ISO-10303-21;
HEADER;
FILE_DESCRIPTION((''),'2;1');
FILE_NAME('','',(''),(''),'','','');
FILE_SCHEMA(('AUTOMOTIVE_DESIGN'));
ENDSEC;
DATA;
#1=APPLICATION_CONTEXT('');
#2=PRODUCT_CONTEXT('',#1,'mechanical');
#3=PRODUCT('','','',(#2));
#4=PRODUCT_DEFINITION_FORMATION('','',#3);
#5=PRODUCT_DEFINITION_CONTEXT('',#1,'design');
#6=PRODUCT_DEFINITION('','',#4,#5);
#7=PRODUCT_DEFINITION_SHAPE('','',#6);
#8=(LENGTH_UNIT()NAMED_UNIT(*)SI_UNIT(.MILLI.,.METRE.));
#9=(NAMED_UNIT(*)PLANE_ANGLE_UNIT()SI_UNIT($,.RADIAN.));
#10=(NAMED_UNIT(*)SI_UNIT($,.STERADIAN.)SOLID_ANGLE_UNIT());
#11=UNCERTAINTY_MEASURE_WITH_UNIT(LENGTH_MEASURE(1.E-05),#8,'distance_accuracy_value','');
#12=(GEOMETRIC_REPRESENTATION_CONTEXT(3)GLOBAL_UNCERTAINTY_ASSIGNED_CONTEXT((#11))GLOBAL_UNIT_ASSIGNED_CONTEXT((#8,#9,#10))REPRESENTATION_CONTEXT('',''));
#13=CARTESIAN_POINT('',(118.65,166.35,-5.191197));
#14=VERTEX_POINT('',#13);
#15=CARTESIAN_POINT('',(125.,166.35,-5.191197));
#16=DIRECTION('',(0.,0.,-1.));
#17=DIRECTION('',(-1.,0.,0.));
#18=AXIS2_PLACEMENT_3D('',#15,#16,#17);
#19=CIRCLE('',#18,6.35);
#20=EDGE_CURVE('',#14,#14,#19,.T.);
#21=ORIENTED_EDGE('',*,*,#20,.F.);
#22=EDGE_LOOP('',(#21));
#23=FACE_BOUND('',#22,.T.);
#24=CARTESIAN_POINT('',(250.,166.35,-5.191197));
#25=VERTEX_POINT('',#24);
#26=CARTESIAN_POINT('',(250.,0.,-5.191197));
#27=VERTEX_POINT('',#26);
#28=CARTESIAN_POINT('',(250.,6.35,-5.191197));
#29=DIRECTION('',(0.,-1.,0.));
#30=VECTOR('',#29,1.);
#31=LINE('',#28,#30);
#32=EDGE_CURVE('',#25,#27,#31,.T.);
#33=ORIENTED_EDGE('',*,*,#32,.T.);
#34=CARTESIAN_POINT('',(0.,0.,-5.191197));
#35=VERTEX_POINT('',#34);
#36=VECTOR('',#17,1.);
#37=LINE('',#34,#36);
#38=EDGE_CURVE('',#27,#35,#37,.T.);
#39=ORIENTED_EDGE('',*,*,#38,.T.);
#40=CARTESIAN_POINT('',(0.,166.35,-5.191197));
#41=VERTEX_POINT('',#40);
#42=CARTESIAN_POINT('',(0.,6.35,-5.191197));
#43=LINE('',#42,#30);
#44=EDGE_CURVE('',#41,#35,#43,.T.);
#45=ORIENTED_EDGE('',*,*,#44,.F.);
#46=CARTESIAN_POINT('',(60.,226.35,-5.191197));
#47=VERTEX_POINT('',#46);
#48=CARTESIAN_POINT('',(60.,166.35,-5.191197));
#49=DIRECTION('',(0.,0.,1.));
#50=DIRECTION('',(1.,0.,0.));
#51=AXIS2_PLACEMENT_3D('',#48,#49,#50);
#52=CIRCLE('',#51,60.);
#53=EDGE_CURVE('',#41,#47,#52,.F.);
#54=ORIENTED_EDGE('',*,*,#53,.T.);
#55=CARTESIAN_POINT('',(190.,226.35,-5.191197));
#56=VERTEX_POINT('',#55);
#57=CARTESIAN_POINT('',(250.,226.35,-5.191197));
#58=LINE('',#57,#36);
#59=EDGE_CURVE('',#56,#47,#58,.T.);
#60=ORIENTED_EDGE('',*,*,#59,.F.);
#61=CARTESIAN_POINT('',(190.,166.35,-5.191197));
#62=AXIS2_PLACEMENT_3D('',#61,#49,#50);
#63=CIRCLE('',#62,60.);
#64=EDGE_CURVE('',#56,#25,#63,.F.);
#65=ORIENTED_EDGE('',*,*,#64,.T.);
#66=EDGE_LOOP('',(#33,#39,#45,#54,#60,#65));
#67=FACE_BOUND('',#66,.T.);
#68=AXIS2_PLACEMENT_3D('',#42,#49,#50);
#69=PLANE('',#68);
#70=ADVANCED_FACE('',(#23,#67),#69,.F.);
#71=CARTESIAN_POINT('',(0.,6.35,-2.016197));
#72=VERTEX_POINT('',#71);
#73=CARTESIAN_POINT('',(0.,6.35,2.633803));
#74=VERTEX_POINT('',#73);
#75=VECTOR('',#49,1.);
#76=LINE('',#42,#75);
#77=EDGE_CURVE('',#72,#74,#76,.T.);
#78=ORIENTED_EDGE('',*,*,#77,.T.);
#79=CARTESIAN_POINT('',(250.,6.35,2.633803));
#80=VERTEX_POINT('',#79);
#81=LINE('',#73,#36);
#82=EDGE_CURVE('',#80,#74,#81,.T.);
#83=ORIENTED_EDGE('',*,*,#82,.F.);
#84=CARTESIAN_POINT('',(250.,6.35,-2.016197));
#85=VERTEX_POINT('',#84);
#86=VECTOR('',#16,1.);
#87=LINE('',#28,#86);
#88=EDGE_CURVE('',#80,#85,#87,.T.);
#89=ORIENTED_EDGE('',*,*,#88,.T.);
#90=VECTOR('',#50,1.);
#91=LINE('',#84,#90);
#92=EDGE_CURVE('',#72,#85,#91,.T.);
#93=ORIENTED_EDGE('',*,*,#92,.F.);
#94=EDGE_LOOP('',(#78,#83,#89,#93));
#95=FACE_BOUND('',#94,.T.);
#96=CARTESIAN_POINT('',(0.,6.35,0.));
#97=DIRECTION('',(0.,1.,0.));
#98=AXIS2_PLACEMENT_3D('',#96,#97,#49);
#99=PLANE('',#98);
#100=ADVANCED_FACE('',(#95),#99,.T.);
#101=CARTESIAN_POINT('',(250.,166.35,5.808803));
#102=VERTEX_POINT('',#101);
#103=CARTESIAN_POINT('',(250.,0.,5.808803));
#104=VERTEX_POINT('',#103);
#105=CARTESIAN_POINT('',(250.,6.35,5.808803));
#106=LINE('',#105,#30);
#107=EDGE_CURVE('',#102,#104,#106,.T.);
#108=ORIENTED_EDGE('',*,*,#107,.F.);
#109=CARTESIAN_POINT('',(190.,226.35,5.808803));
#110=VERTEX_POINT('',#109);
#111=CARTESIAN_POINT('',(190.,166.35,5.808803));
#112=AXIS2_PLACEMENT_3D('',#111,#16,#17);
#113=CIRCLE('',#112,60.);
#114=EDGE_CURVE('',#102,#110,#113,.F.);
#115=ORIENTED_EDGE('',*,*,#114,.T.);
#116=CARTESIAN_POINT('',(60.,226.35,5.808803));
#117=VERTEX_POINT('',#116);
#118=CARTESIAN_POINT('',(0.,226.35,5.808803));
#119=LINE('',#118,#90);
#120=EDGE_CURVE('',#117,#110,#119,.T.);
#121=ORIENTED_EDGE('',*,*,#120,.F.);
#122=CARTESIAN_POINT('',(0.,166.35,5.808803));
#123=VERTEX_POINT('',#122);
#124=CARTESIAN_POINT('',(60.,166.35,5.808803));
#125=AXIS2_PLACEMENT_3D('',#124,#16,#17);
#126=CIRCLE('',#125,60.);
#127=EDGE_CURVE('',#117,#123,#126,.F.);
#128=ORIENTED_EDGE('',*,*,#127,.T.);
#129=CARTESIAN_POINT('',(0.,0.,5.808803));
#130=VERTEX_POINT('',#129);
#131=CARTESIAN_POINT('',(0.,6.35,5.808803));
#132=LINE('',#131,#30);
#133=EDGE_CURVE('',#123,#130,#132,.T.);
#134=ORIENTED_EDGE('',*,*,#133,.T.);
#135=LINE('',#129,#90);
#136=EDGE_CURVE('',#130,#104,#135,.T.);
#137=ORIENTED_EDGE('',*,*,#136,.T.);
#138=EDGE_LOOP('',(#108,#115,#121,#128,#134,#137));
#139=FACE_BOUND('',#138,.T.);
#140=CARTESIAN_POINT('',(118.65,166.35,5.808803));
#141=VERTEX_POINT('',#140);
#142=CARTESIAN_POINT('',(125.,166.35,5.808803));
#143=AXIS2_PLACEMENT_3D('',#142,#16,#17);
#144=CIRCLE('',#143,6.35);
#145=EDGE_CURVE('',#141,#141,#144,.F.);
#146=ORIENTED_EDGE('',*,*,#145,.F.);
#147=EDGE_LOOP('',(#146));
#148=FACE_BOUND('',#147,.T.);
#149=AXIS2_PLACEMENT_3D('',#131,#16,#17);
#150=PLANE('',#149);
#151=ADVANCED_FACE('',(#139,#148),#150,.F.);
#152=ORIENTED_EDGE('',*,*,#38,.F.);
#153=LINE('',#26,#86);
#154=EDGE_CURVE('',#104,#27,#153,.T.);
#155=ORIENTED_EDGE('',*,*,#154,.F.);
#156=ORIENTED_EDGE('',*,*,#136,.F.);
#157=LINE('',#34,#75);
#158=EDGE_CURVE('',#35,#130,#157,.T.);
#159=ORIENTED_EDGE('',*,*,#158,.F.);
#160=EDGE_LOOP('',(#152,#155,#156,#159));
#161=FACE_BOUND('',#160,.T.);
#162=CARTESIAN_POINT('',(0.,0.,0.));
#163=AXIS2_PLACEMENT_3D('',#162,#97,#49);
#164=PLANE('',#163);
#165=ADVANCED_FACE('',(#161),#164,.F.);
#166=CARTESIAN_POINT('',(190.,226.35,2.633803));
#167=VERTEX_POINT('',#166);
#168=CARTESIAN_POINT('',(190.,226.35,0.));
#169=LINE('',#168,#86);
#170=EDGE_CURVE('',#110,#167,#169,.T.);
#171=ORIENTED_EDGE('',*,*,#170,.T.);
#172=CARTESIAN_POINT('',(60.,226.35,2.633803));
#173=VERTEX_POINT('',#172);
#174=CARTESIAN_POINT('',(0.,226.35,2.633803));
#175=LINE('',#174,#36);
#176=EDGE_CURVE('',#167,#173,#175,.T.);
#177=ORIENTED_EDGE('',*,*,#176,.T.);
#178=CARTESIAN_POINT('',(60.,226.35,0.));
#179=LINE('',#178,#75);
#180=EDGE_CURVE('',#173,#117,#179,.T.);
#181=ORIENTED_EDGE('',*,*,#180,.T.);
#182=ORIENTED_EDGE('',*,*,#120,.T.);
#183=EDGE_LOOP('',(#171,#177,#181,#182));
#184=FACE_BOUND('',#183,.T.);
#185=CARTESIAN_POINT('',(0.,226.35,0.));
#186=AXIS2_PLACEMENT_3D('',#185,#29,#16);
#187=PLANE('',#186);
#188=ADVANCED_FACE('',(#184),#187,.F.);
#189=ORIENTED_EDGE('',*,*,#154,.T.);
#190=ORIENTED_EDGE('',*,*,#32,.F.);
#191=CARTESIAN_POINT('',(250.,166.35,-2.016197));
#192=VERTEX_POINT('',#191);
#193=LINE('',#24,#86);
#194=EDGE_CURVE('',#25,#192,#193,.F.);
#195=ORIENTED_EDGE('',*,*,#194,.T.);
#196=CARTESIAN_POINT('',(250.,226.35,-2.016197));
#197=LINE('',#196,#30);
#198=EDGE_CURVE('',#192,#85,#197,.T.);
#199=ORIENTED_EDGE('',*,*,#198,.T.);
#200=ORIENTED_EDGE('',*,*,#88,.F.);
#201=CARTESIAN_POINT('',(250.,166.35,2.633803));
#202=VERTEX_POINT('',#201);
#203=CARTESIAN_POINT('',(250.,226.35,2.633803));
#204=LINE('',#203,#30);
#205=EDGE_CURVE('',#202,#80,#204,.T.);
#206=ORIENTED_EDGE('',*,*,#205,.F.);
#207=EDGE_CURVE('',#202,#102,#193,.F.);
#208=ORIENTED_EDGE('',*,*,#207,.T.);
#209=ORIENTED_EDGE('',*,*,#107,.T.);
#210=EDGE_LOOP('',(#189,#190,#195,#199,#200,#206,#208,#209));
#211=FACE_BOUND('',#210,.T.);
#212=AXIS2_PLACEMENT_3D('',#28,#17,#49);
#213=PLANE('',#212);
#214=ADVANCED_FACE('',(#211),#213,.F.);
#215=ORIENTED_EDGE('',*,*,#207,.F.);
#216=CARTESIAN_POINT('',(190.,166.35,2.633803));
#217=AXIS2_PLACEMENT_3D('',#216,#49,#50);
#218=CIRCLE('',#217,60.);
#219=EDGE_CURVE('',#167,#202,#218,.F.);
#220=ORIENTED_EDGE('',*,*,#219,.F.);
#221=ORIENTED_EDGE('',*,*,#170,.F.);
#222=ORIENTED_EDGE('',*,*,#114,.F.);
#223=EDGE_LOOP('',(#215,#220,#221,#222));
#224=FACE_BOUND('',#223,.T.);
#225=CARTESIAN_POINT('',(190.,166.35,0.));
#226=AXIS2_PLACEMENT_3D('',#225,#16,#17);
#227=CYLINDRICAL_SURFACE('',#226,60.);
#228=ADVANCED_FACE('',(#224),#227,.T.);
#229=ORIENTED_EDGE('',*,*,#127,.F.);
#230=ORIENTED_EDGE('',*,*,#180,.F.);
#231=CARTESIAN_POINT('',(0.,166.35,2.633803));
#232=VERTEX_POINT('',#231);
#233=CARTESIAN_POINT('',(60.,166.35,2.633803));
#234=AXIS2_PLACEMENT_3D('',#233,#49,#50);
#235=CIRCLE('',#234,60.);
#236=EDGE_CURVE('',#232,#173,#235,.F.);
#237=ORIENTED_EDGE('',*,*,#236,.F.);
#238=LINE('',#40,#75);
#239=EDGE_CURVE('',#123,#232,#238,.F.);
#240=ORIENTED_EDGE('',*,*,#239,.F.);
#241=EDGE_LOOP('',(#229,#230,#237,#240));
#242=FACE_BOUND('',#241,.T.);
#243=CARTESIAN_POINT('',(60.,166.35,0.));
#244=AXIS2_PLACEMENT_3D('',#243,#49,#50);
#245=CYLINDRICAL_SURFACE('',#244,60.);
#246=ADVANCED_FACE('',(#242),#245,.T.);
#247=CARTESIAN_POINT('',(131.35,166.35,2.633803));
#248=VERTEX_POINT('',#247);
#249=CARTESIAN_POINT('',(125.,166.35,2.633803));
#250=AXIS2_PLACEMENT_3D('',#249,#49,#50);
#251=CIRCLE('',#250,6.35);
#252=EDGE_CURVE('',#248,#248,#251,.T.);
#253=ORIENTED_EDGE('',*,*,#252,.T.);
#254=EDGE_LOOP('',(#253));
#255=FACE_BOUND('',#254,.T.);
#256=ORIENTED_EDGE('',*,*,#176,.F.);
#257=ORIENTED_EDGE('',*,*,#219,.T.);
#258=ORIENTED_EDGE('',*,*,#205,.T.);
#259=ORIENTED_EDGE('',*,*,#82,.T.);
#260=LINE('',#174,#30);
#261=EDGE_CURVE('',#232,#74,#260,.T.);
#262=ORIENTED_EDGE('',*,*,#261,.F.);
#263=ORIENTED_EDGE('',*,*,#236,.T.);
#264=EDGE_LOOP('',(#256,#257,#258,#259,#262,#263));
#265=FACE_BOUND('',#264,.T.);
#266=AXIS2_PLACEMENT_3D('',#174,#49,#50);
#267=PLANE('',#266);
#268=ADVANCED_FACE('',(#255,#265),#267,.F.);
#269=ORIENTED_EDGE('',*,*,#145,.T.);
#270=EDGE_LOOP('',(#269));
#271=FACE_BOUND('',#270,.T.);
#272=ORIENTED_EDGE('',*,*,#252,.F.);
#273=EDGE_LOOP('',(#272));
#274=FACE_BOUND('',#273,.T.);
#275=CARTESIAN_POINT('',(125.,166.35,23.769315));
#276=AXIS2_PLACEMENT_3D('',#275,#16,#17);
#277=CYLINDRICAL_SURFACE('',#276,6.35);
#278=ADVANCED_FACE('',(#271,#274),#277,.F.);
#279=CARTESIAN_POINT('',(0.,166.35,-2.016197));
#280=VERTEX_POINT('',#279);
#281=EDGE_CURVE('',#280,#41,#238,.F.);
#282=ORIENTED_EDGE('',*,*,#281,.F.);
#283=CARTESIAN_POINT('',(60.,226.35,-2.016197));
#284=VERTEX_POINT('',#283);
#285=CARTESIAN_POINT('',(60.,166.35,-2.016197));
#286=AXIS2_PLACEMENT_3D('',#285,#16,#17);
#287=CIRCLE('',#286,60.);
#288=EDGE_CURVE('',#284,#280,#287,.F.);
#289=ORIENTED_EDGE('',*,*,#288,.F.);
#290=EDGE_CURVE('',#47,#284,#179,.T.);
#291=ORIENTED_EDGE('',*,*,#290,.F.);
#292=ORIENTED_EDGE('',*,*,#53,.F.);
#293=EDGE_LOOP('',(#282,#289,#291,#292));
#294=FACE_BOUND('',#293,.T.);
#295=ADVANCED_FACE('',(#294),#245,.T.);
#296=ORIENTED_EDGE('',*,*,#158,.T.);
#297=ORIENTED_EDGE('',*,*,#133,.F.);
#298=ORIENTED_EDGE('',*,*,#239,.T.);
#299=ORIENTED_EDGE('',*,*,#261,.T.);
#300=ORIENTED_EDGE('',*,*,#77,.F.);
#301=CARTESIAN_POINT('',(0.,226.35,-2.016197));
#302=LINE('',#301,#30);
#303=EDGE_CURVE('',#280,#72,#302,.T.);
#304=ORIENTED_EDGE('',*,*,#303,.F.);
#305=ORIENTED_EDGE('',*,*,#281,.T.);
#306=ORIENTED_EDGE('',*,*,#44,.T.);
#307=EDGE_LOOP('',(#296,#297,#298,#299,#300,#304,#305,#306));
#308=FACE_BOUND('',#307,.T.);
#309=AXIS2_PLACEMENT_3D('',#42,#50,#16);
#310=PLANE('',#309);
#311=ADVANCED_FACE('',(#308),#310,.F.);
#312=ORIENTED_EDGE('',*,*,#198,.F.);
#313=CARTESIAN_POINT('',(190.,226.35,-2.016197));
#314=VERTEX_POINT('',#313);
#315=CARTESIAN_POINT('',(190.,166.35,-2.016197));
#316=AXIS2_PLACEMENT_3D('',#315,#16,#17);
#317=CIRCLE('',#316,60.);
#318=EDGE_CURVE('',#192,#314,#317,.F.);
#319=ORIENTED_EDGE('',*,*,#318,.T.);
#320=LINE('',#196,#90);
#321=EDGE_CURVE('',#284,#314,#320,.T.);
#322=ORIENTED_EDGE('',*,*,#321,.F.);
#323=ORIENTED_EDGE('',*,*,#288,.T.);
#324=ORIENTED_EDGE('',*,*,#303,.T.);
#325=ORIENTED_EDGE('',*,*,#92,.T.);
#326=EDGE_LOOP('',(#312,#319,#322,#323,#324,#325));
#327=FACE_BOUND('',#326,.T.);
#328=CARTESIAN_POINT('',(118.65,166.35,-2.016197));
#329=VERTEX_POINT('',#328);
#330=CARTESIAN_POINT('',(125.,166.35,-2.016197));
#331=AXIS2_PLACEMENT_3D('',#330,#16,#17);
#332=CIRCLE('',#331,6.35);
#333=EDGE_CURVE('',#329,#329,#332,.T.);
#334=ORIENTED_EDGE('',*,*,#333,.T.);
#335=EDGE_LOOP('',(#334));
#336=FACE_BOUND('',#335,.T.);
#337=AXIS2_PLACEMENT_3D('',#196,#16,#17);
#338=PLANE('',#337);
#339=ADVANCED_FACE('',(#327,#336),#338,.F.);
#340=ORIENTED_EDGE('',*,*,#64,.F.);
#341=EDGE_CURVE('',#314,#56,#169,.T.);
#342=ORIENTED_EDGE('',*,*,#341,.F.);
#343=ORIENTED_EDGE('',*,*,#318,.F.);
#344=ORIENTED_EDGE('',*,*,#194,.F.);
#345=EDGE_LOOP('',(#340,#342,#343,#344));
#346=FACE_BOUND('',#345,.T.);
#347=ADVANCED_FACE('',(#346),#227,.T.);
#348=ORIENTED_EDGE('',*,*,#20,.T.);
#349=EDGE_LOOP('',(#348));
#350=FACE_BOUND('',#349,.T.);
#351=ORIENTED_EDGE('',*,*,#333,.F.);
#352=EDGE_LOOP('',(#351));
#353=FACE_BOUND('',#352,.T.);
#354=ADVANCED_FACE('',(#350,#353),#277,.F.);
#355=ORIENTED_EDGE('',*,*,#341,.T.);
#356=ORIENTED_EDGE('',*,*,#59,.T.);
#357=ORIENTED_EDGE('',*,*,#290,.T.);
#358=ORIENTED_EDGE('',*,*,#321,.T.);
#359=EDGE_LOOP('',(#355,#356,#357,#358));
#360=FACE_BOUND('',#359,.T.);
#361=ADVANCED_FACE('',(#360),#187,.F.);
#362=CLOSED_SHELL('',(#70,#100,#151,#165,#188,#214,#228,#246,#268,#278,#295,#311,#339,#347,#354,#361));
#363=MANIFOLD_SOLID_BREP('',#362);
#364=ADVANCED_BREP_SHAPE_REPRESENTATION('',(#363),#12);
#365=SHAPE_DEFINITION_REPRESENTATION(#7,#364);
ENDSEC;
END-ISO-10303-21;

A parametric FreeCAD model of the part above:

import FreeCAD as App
import Part
import Sketcher
from FreeCAD import Vector
Q = App.Units.Quantity


def edges_at(feature, points):
    """Names of the edges that pass closest to the given points."""
    edges = feature.Shape.Edges
    near = lambda p: min(range(len(edges)), key=lambda i: edges[i].distToShape(Part.Vertex(*p))[0])
    return sorted({f"Edge{near(p) + 1}" for p in points})


def add_polygon(sketch, points):
    """Adds a closed chain of lines whose ends are joined by coincident constraints."""
    first, n = sketch.GeometryCount, len(points)
    for a, b in zip(points, points[1:] + points[:1]):
        sketch.addGeometry(Part.LineSegment(App.Vector(*a, 0), App.Vector(*b, 0)), False)
    for i in range(n):
        sketch.addConstraint(Sketcher.Constraint("Coincident", first + i, 2, first + (i + 1) % n, 1))

doc = App.newDocument("Part")
body = doc.addObject("PartDesign::Body", "Body")

# Sketch on XZ plane
sketch1 = body.newObject("Sketcher::SketchObject", "Sketch")
sketch1.AttachmentSupport = (doc.getObject("XZ_Plane"), [""])
sketch1.MapMode = "FlatFace"
add_polygon(sketch1, [(0, -5), (0, 6), (250, 6), (250, -5)])  # lines 0-3
sketch1.addConstraint([
    Sketcher.Constraint("Vertical", 0),
    Sketcher.Constraint("Horizontal", 1),
    Sketcher.Constraint("Vertical", 2),
    Sketcher.Constraint("Horizontal", 3),
    Sketcher.Constraint("PointOnObject", 0, 2, -2),
    Sketcher.Constraint("DistanceX", 1, 1, 1, 2, Q("250 mm")),
    Sketcher.Constraint("DistanceY", 0, 1, 0, 2, Q("11 mm")),
    Sketcher.Constraint("DistanceY", -1, 1, 0, 2, Q("5.808803 mm")),
])
pad1 = body.newObject("PartDesign::Pad", "Pad")
pad1.Profile = sketch1
pad1.Length = 6.35
pad1.Reversed = True

# Sketch on XZ plane
sketch2 = body.newObject("Sketcher::SketchObject", "Sketch001")
sketch2.AttachmentSupport = (doc.getObject("XZ_Plane"), [""])
sketch2.MapMode = "FlatFace"
sketch2.AttachmentOffset = App.Placement(Vector(0, 0, -6.35), App.Rotation())
add_polygon(sketch2, [(0, -5.2), (0, -2), (250, -2), (250, -5.2)])  # lines 0-3
add_polygon(sketch2, [(0, 2.6), (0, 5.8), (250, 5.8), (250, 2.6)])  # lines 4-7
sketch2.addConstraint([
    Sketcher.Constraint("Vertical", 0),
    Sketcher.Constraint("Horizontal", 1),
    Sketcher.Constraint("Vertical", 2),
    Sketcher.Constraint("Horizontal", 3),
    Sketcher.Constraint("Vertical", 4),
    Sketcher.Constraint("Horizontal", 5),
    Sketcher.Constraint("Vertical", 6),
    Sketcher.Constraint("Horizontal", 7),
    Sketcher.Constraint("PointOnObject", 0, 2, -2),
    Sketcher.Constraint("PointOnObject", 4, 2, -2),
    Sketcher.Constraint("Vertical", 2, 2, 5, 2),
    Sketcher.Constraint("Equal", 2, 4),
    Sketcher.Constraint("DistanceX", 1, 1, 1, 2, Q("250 mm")),
    Sketcher.Constraint("DistanceY", 3, 2, 4, 2, Q("11 mm")),
    Sketcher.Constraint("DistanceY", 0, 1, 0, 2, Q("3.175 mm")),
    Sketcher.Constraint("DistanceY", 0, 2, -1, 1, Q("2.016197 mm")),
])
pad2 = body.newObject("PartDesign::Pad", "Pad001")
pad2.Profile = sketch2
pad2.Length = 220
pad2.Reversed = True
doc.recompute()

fillet = body.newObject("PartDesign::Fillet", "Fillet")
fillet.Base = (pad2, edges_at(pad2, [
    (250, 226.35, -3.604),
    (0, 226.35, -3.604),
    (0, 226.35, 4.221),
    (250, 226.35, 4.221),
]))
fillet.Radius = 60

# Sketch on XY plane
sketch3 = body.newObject("Sketcher::SketchObject", "Sketch002")
sketch3.AttachmentSupport = (doc.getObject("XY_Plane"), [""])
sketch3.MapMode = "FlatFace"
sketch3.AttachmentOffset = App.Placement(Vector(0, 0, -5.191197), App.Rotation())
sketch3.addGeometry(Part.Circle(Vector(125, 166, 0), Vector(0, 0, 1), 6), False)
sketch3.addConstraint([
    Sketcher.Constraint("Diameter", 0, Q("12.7 mm")),
    Sketcher.Constraint("DistanceX", -1, 1, 0, 3, Q("125 mm")),
    Sketcher.Constraint("DistanceY", -1, 1, 0, 3, Q("166.35 mm")),
])
pocket1 = body.newObject("PartDesign::Pocket", "Pocket")
pocket1.Profile = sketch3
pocket1.Length = 11
pocket1.Reversed = True

doc.recompute()
